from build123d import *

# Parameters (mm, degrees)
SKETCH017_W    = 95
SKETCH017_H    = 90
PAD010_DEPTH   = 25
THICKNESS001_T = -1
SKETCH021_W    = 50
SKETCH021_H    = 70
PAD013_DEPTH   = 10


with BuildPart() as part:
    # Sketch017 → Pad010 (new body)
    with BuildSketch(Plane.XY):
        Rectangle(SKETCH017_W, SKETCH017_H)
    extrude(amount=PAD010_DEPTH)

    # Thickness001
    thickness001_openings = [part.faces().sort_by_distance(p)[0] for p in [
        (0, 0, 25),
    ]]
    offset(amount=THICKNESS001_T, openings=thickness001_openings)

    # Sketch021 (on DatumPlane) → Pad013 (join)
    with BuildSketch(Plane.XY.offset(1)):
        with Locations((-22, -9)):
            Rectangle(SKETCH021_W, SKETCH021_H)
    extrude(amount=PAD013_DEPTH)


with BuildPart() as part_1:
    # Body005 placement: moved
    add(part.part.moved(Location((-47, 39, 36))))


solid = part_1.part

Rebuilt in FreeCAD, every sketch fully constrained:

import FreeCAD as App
import Part
import Sketcher

V = App.Vector
Q = App.Units.Quantity


def faces_at(feature, points):
    """Names of the faces that lie closest to the given points."""
    faces = feature.Shape.Faces
    near = lambda p: min(range(len(faces)), key=lambda i: faces[i].distToShape(Part.Vertex(*p))[0])
    return sorted({f"Face{near(p) + 1}" for p in points})


def add_polygon(sketch, points):
    """Adds a closed chain of lines whose ends are joined by coincident constraints."""
    first, n = sketch.GeometryCount, len(points)
    for a, b in zip(points, points[1:] + points[:1]):
        sketch.addGeometry(Part.LineSegment(App.Vector(*a, 0), App.Vector(*b, 0)), False)
    for i in range(n):
        sketch.addConstraint(Sketcher.Constraint("Coincident", first + i, 2, first + (i + 1) % n, 1))

doc = App.newDocument("Part")
body = doc.addObject("PartDesign::Body", "Body")

# Sketch on XY plane
sketch1 = body.newObject("Sketcher::SketchObject", "Sketch")
sketch1.AttachmentSupport = (doc.getObject("XY_Plane"), [""])
sketch1.MapMode = "FlatFace"
add_polygon(sketch1, [(-48, 45), (-48, -45), (48, -45), (48, 45)])  # lines 0-3
sketch1.addConstraint([
    Sketcher.Constraint("Vertical", 0),
    Sketcher.Constraint("Horizontal", 1),
    Sketcher.Constraint("Vertical", 2),
    Sketcher.Constraint("Horizontal", 3),
    Sketcher.Constraint("Symmetric", 0, 2, 2, 2, -1, 1),
    Sketcher.Constraint("DistanceX", 1, 1, 1, 2, Q("95 mm")),
    Sketcher.Constraint("DistanceY", 0, 2, 0, 1, Q("90 mm")),
])
pad1 = body.newObject("PartDesign::Pad", "Pad")
pad1.Profile = sketch1
pad1.Length = 25
doc.recompute()

thickness = body.newObject("PartDesign::Thickness", "Thickness")
thickness.Base = (pad1, faces_at(pad1, [(0, 0, 25)]))
thickness.Value = 1
thickness.Reversed = True
thickness.Join = "Arc"

# Sketch on XY plane
sketch2 = body.newObject("Sketcher::SketchObject", "Sketch001")
sketch2.AttachmentSupport = (doc.getObject("XY_Plane"), [""])
sketch2.MapMode = "FlatFace"
sketch2.AttachmentOffset = App.Placement(V(0, 0, 1), App.Rotation())
add_polygon(sketch2, [(-47, 26), (-47, -44), (3, -44), (3, 26)])  # lines 0-3
sketch2.addConstraint([
    Sketcher.Constraint("Vertical", 0),
    Sketcher.Constraint("Horizontal", 1),
    Sketcher.Constraint("Vertical", 2),
    Sketcher.Constraint("Horizontal", 3),
    Sketcher.Constraint("DistanceX", 1, 1, 1, 2, Q("50 mm")),
    Sketcher.Constraint("DistanceY", 0, 2, 0, 1, Q("70 mm")),
    Sketcher.Constraint("DistanceX", 0, 2, -1, 1, Q("47 mm")),
    Sketcher.Constraint("DistanceY", 0, 2, -1, 1, Q("44 mm")),
])
pad2 = body.newObject("PartDesign::Pad", "Pad001")
pad2.Profile = sketch2
pad2.Length = 10
body2 = doc.addObject("PartDesign::Body", "Body001")
doc.recompute()

body.Placement = App.Placement(V(-47, 39, 36), App.Rotation(V(0, 0, 1), 0))
boolean = body2.newObject("PartDesign::Boolean", "Boolean")
boolean.Type = "Fuse"
boolean.addObjects([body])

doc.recompute()
